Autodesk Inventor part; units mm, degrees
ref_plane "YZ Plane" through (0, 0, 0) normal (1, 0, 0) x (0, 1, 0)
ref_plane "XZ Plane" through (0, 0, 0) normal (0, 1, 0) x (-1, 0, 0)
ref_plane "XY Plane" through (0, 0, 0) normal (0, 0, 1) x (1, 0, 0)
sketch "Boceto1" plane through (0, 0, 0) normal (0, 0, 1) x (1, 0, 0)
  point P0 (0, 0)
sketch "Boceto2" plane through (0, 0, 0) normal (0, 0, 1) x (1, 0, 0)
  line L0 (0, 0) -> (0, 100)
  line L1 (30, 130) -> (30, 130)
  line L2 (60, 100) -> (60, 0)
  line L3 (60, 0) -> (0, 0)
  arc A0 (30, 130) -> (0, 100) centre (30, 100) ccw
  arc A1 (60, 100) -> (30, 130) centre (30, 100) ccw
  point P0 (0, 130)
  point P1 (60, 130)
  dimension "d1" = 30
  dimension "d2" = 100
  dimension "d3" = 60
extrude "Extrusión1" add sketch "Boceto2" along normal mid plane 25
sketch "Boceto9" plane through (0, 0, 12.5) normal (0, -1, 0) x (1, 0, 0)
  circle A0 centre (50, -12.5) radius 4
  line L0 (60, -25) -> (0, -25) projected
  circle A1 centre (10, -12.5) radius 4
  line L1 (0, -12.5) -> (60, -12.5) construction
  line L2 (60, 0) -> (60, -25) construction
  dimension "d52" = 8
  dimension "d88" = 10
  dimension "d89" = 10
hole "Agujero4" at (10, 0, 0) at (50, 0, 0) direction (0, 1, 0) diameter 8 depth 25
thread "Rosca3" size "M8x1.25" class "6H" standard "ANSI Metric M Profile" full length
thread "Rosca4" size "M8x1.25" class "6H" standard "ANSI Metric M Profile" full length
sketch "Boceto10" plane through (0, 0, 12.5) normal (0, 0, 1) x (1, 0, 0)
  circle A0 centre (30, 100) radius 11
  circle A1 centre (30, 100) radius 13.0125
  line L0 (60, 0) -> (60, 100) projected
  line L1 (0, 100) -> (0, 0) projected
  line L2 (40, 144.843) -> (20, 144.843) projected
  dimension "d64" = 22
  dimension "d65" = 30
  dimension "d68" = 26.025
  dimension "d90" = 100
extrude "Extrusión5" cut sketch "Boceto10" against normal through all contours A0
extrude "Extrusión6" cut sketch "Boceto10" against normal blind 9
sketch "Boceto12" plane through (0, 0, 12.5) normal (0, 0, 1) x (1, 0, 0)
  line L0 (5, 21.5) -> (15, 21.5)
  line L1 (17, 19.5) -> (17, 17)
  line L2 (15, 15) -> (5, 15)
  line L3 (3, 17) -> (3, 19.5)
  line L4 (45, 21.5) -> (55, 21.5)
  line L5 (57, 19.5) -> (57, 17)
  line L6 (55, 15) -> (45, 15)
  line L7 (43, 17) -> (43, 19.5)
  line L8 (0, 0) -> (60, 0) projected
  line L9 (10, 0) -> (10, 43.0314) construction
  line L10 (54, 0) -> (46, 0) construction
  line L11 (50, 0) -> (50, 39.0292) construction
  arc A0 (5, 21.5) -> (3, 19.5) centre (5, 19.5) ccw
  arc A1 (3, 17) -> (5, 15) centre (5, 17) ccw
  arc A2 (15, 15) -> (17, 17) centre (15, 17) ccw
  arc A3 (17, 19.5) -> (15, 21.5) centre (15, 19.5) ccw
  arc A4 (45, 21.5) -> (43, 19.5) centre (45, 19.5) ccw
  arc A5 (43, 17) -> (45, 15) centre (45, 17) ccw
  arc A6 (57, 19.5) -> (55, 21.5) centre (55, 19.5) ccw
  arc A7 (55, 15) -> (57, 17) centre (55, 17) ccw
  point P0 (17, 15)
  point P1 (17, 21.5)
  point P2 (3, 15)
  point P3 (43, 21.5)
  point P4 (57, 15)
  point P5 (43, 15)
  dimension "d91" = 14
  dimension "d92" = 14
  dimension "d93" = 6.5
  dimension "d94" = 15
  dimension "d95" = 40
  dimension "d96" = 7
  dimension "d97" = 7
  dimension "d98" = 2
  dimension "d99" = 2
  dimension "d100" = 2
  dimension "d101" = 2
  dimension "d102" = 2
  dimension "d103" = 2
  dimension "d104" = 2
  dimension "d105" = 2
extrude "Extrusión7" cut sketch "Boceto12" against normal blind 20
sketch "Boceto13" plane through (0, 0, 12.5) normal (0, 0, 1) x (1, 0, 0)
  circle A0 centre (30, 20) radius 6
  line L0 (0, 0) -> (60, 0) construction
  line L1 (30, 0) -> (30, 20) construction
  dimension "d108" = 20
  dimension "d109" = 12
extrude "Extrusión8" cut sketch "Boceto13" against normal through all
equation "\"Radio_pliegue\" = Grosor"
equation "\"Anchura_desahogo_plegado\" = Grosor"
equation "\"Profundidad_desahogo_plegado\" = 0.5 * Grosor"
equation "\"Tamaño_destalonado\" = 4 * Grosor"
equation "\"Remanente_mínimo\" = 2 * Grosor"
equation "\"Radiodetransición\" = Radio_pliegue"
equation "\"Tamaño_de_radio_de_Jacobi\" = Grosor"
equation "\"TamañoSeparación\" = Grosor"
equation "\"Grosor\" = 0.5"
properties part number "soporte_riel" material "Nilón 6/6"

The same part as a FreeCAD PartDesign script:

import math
import FreeCAD as App
import Part
import Sketcher

V = App.Vector

doc = App.newDocument("Part")
body = doc.addObject("PartDesign::Body", "Body")

sketch1 = doc.addObject("Sketcher::SketchObject", "Sketch")
body.addObject(sketch1)
sketch1.AttachmentSupport = (doc.XY_Plane, [""])
sketch1.MapMode = "FlatFace"
sketch1.addGeometry([
    Part.LineSegment(V(0, 100, 0), V(0, 0, 0)),
    Part.LineSegment(V(0, 0, 0), V(60, 0, 0)),
    Part.LineSegment(V(60, 0, 0), V(60, 100, 0)),
    Part.ArcOfCircle(Part.Circle(V(30, 100, 0), V(0, 0, 1), 30), math.radians(0), math.radians(180)),
], False)
sketch1.addConstraint([
    Sketcher.Constraint("Coincident", 0, 2, 1, 1),
    Sketcher.Constraint("Coincident", 1, 2, 2, 1),
    Sketcher.Constraint("Tangent", 2, 2, 3, 1),
    Sketcher.Constraint("Tangent", 3, 2, 0, 1),
    Sketcher.Constraint("Vertical", 0),
    Sketcher.Constraint("Horizontal", 1),
    Sketcher.Constraint("Vertical", 2),
    Sketcher.Constraint("Coincident", 0, 2, -1, 1),
    Sketcher.Constraint("Radius", 3, 30.0),
    Sketcher.Constraint("DistanceY", 0, 2, 0, 1, 100.0),
])
pad1 = doc.addObject("PartDesign::Pad", "Pad")
body.addObject(pad1)
pad1.Profile = sketch1
pad1.Length = 25
pad1.Midplane = True

sketch2 = doc.addObject("Sketcher::SketchObject", "Sketch001")
body.addObject(sketch2)
sketch2.AttachmentSupport = (doc.XZ_Plane, [""])
sketch2.MapMode = "FlatFace"
sketch2.addGeometry([
    Part.Circle(V(10, 0, 0), V(0, 0, 1), 4),
    Part.Circle(V(50, 0, 0), V(0, 0, 1), 4),
], False)
sketch2.addConstraint([
    Sketcher.Constraint("Equal", 0, 1),
    Sketcher.Constraint("PointOnObject", 0, 3, -1),
    Sketcher.Constraint("PointOnObject", 1, 3, -1),
    Sketcher.Constraint("Diameter", 0, 8.0),
    Sketcher.Constraint("DistanceX", -1, 1, 0, 3, 10.0),
    Sketcher.Constraint("DistanceX", -1, 1, 1, 3, 50.0),
])
doc.recompute()
hole = doc.addObject("PartDesign::Hole", "Hole")
body.addObject(hole)
hole.Profile = sketch2
hole.ThreadType = "None"
hole.Diameter = 8
hole.DepthType = "Dimension"
hole.Depth = 25
hole.DrillPoint = "Flat"

sketch3 = doc.addObject("Sketcher::SketchObject", "Sketch002")
body.addObject(sketch3)
sketch3.AttachmentSupport = (doc.XY_Plane, [""])
sketch3.MapMode = "FlatFace"
sketch3.AttachmentOffset = App.Placement(V(0, 0, 12.5), App.Rotation())
sketch3.addGeometry(Part.Circle(V(30, 100, 0), V(0, 0, 1), 11), False)
sketch3.addConstraint([
    Sketcher.Constraint("Diameter", 0, 22.0),
    Sketcher.Constraint("DistanceX", -1, 1, 0, 3, 30.0),
    Sketcher.Constraint("DistanceY", -1, 1, 0, 3, 100.0),
])
pocket1 = doc.addObject("PartDesign::Pocket", "Pocket")
body.addObject(pocket1)
pocket1.Profile = sketch3
pocket1.Type = "ThroughAll"

sketch4 = doc.addObject("Sketcher::SketchObject", "Sketch003")
body.addObject(sketch4)
sketch4.AttachmentSupport = (doc.XY_Plane, [""])
sketch4.MapMode = "FlatFace"
sketch4.AttachmentOffset = App.Placement(V(0, 0, 12.5), App.Rotation())
sketch4.addGeometry([
    Part.Circle(V(30, 100, 0), V(0, 0, 1), 13),
    Part.Circle(V(30, 100, 0), V(0, 0, 1), 11),
], False)
sketch4.addConstraint([
    Sketcher.Constraint("Coincident", 1, 3, 0, 3),
    Sketcher.Constraint("Diameter", 1, 22.0),
    Sketcher.Constraint("Diameter", 0, 26.025),
    Sketcher.Constraint("DistanceX", -1, 1, 0, 3, 30.0),
    Sketcher.Constraint("DistanceY", -1, 1, 0, 3, 100.0),
])
pocket2 = doc.addObject("PartDesign::Pocket", "Pocket001")
body.addObject(pocket2)
pocket2.Profile = sketch4
pocket2.Length = 9

sketch5 = doc.addObject("Sketcher::SketchObject", "Sketch004")
body.addObject(sketch5)
sketch5.AttachmentSupport = (doc.XY_Plane, [""])
sketch5.MapMode = "FlatFace"
sketch5.AttachmentOffset = App.Placement(V(0, 0, 12.5), App.Rotation())
sketch5.addGeometry([
    Part.LineSegment(V(15, 21.5, 0), V(5, 21.5, 0)),
    Part.ArcOfCircle(Part.Circle(V(5, 19.5, 0), V(0, 0, 1), 2), math.radians(90), math.radians(180)),
    Part.LineSegment(V(3, 19.5, 0), V(3, 17, 0)),
    Part.ArcOfCircle(Part.Circle(V(5, 17, 0), V(0, 0, 1), 2), math.radians(180), math.radians(270)),
    Part.LineSegment(V(5, 15, 0), V(15, 15, 0)),
    Part.ArcOfCircle(Part.Circle(V(15, 17, 0), V(0, 0, 1), 2), math.radians(-90), math.radians(0)),
    Part.LineSegment(V(17, 17, 0), V(17, 19.5, 0)),
    Part.ArcOfCircle(Part.Circle(V(15, 19.5, 0), V(0, 0, 1), 2), math.radians(0), math.radians(90)),
    Part.LineSegment(V(55, 21.5, 0), V(45, 21.5, 0)),
    Part.ArcOfCircle(Part.Circle(V(45, 19.5, 0), V(0, 0, 1), 2), math.radians(90), math.radians(180)),
    Part.LineSegment(V(43, 19.5, 0), V(43, 17, 0)),
    Part.ArcOfCircle(Part.Circle(V(45, 17, 0), V(0, 0, 1), 2), math.radians(180), math.radians(270)),
    Part.LineSegment(V(45, 15, 0), V(55, 15, 0)),
    Part.ArcOfCircle(Part.Circle(V(55, 17, 0), V(0, 0, 1), 2), math.radians(-90), math.radians(0)),
    Part.LineSegment(V(57, 17, 0), V(57, 19.5, 0)),
    Part.ArcOfCircle(Part.Circle(V(55, 19.5, 0), V(0, 0, 1), 2), math.radians(0), math.radians(90)),
], False)
sketch5.addConstraint([
    Sketcher.Constraint("Tangent", 0, 2, 1, 1),
    Sketcher.Constraint("Tangent", 1, 2, 2, 1),
    Sketcher.Constraint("Tangent", 2, 2, 3, 1),
    Sketcher.Constraint("Tangent", 3, 2, 4, 1),
    Sketcher.Constraint("Tangent", 4, 2, 5, 1),
    Sketcher.Constraint("Tangent", 5, 2, 6, 1),
    Sketcher.Constraint("Tangent", 6, 2, 7, 1),
    Sketcher.Constraint("Tangent", 7, 2, 0, 1),
    Sketcher.Constraint("Tangent", 8, 2, 9, 1),
    Sketcher.Constraint("Tangent", 9, 2, 10, 1),
    Sketcher.Constraint("Tangent", 10, 2, 11, 1),
    Sketcher.Constraint("Tangent", 11, 2, 12, 1),
    Sketcher.Constraint("Tangent", 12, 2, 13, 1),
    Sketcher.Constraint("Tangent", 13, 2, 14, 1),
    Sketcher.Constraint("Tangent", 14, 2, 15, 1),
    Sketcher.Constraint("Tangent", 15, 2, 8, 1),
    Sketcher.Constraint("Horizontal", 0),
    Sketcher.Constraint("Vertical", 2),
    Sketcher.Constraint("Horizontal", 4),
    Sketcher.Constraint("Vertical", 6),
    Sketcher.Constraint("Horizontal", 8),
    Sketcher.Constraint("Vertical", 10),
    Sketcher.Constraint("Horizontal", 12),
    Sketcher.Constraint("Vertical", 14),
    Sketcher.Constraint("Equal", 1, 3),
    Sketcher.Constraint("Equal", 3, 5),
    Sketcher.Constraint("Equal", 5, 7),
    Sketcher.Constraint("Equal", 7, 9),
    Sketcher.Constraint("Equal", 9, 11),
    Sketcher.Constraint("Equal", 11, 13),
    Sketcher.Constraint("Equal", 13, 15),
    Sketcher.Constraint("Horizontal", 7, 3, 9, 3),
    Sketcher.Constraint("Horizontal", 5, 3, 11, 3),
    Sketcher.Constraint("Equal", 4, 8),
    Sketcher.Constraint("Radius", 1, 2.0),
    Sketcher.Constraint("DistanceX", -1, 1, 5, 3, 15.0),
    Sketcher.Constraint("DistanceY", -1, 1, 3, 2, 15.0),
    Sketcher.Constraint("DistanceX", 1, 3, 9, 3, 40.0),
    Sketcher.Constraint("DistanceY", 3, 2, 0, 2, 6.5),
    Sketcher.Constraint("DistanceX", 0, 2, 0, 1, 10.0),
])
pocket3 = doc.addObject("PartDesign::Pocket", "Pocket002")
body.addObject(pocket3)
pocket3.Profile = sketch5
pocket3.Length = 20

sketch6 = doc.addObject("Sketcher::SketchObject", "Sketch005")
body.addObject(sketch6)
sketch6.AttachmentSupport = (doc.XY_Plane, [""])
sketch6.MapMode = "FlatFace"
sketch6.AttachmentOffset = App.Placement(V(0, 0, 12.5), App.Rotation())
sketch6.addGeometry(Part.Circle(V(30, 20, 0), V(0, 0, 1), 6), False)
sketch6.addConstraint([
    Sketcher.Constraint("Diameter", 0, 12.0),
    Sketcher.Constraint("DistanceY", -1, 1, 0, 3, 20.0),
    Sketcher.Constraint("DistanceX", -1, 1, 0, 3, 30.0),
])
pocket4 = doc.addObject("PartDesign::Pocket", "Pocket003")
body.addObject(pocket4)
pocket4.Profile = sketch6
pocket4.Type = "ThroughAll"

doc.recompute()
